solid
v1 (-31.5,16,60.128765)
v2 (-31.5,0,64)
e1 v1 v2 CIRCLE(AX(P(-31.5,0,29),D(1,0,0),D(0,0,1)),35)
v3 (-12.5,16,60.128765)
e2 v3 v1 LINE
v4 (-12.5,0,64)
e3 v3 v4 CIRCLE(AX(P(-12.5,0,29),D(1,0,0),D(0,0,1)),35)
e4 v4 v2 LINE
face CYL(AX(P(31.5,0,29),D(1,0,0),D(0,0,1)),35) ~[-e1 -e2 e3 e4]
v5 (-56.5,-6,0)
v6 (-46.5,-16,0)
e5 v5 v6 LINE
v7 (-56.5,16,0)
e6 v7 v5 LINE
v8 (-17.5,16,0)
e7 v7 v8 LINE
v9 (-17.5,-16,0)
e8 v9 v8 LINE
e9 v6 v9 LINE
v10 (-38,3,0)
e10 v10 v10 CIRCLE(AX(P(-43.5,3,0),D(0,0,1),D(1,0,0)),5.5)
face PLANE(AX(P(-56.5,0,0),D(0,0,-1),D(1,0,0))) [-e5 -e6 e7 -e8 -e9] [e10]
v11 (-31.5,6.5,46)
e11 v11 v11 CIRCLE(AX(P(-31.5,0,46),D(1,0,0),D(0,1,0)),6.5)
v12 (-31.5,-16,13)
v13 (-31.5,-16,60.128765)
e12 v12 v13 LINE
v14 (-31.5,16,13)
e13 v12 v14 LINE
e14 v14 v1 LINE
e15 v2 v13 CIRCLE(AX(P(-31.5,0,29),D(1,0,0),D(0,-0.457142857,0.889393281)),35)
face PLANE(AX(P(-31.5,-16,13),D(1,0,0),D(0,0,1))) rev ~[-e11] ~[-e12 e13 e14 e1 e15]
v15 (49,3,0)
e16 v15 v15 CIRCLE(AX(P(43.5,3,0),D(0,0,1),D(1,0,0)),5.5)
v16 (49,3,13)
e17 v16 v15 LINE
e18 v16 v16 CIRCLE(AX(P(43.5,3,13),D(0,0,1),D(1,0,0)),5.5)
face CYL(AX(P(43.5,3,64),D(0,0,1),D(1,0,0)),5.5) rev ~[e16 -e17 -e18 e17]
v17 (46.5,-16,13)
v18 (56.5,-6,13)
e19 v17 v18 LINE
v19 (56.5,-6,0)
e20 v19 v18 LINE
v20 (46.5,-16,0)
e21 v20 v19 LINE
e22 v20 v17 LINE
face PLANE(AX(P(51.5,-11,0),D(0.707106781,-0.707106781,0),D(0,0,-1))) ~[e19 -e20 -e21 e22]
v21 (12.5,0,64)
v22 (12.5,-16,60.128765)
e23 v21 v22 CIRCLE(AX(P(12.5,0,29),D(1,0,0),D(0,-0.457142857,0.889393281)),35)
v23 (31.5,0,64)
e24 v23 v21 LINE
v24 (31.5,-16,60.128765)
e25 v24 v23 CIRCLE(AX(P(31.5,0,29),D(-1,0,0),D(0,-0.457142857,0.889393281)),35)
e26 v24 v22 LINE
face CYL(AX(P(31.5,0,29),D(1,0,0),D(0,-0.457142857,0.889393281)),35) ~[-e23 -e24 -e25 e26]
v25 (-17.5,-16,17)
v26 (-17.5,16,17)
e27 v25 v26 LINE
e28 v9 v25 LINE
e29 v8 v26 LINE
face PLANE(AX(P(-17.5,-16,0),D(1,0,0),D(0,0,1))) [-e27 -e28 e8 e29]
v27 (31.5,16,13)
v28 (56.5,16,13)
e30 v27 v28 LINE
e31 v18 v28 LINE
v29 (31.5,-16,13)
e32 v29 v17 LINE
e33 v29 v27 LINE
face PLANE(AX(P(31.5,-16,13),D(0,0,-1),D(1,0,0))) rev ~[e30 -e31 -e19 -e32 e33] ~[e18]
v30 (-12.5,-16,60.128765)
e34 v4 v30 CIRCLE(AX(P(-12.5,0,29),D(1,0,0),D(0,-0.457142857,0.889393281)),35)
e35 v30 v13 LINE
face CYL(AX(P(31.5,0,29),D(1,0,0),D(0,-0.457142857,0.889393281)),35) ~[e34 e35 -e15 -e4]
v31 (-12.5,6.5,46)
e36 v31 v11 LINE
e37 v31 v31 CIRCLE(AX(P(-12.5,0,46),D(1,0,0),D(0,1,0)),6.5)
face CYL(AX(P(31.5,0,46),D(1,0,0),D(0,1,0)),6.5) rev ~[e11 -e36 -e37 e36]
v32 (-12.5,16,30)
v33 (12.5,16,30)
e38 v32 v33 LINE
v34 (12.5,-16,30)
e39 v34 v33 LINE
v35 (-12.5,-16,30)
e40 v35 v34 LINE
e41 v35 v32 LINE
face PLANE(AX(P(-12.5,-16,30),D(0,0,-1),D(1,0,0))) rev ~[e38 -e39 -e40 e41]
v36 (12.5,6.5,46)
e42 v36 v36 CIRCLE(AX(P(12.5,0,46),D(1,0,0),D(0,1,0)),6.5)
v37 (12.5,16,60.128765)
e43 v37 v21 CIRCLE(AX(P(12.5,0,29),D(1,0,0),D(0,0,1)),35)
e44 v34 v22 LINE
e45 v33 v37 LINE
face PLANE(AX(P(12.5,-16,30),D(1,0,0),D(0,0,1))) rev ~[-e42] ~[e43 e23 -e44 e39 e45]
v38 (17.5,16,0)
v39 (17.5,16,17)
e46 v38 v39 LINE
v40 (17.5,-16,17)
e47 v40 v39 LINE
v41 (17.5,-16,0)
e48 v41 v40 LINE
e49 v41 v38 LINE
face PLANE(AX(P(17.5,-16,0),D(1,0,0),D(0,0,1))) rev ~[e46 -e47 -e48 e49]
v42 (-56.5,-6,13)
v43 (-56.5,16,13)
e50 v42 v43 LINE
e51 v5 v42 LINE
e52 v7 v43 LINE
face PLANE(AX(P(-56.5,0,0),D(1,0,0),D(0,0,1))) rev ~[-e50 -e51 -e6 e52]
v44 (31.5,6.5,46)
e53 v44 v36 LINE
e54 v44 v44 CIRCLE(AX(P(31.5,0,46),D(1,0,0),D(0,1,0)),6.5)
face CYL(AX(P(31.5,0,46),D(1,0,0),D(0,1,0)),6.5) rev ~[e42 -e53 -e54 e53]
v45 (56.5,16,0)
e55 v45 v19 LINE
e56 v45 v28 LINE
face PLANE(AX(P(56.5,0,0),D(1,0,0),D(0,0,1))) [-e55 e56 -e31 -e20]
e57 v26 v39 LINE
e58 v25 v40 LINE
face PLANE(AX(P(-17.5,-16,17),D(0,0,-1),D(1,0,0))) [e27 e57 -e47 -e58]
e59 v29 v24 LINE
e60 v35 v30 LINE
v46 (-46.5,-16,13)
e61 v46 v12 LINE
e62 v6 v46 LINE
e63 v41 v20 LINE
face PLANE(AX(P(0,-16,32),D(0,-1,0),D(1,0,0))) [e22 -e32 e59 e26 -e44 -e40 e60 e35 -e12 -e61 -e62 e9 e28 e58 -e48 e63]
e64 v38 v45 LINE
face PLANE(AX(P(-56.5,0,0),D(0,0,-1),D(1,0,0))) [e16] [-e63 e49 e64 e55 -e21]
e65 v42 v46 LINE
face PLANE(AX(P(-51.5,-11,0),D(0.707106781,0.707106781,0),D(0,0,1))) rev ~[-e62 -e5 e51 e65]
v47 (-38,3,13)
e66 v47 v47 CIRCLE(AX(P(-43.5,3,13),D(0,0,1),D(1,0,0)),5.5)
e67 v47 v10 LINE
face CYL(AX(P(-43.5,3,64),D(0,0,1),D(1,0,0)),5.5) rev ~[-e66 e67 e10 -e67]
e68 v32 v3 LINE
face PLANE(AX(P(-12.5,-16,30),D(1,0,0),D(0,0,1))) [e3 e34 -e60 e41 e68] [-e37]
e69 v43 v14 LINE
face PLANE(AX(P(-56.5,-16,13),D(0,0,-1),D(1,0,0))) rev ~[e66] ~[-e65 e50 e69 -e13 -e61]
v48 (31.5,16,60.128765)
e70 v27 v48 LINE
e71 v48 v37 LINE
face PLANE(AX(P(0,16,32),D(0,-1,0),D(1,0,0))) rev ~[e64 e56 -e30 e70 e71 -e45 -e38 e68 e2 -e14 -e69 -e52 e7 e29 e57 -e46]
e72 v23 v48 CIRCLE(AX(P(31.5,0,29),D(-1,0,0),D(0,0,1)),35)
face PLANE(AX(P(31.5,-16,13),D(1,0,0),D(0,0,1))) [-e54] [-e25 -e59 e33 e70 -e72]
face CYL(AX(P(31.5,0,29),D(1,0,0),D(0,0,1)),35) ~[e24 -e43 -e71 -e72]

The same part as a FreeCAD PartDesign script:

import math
import FreeCAD as App
import Part
import Sketcher


def edges_at(feature, points):
    """Names of the edges that pass closest to the given points."""
    edges = feature.Shape.Edges
    near = lambda p: min(range(len(edges)), key=lambda i: edges[i].distToShape(Part.Vertex(*p))[0])
    return sorted({f"Edge{near(p) + 1}" for p in points})


def add_polygon(sketch, points):
    """Adds a closed chain of lines whose ends are joined by coincident constraints."""
    first, n = sketch.GeometryCount, len(points)
    for a, b in zip(points, points[1:] + points[:1]):
        sketch.addGeometry(Part.LineSegment(App.Vector(*a, 0), App.Vector(*b, 0)), False)
    for i in range(n):
        sketch.addConstraint(Sketcher.Constraint("Coincident", first + i, 2, first + (i + 1) % n, 1))

doc = App.newDocument("Part")
body = doc.addObject("PartDesign::Body", "Body")

# Sketch on XZ plane
sketch1 = body.newObject("Sketcher::SketchObject", "Sketch")
sketch1.AttachmentSupport = (doc.getObject("XZ_Plane"), [""])
sketch1.MapMode = "FlatFace"
add_polygon(sketch1, [(-56, 64), (-56, 0), (56, 0), (56, 64)])  # lines 0-3
sketch1.addConstraint([
    Sketcher.Constraint("Vertical", 0),
    Sketcher.Constraint("Horizontal", 1),
    Sketcher.Constraint("Vertical", 2),
    Sketcher.Constraint("Horizontal", 3),
    Sketcher.Constraint("Symmetric", 0, 2, 1, 2, -1, 1),
    Sketcher.Constraint("DistanceX", 1, 1, 1, 2, 113.0),
    Sketcher.Constraint("DistanceY", 0, 2, 0, 1, 64.0),
])
pad1 = body.newObject("PartDesign::Pad", "Pad")
pad1.Profile = sketch1
pad1.Length = 32
pad1.Midplane = True

# Sketch on XZ plane
sketch2 = body.newObject("Sketcher::SketchObject", "Sketch001")
sketch2.AttachmentSupport = (doc.getObject("XZ_Plane"), [""])
sketch2.MapMode = "FlatFace"
sketch2.AttachmentOffset = App.Placement(App.Vector(0, 0, 16), App.Rotation())
add_polygon(sketch2, [(-56, 64), (-56, 13), (-32, 13), (-32, 64)])  # lines 0-3
add_polygon(sketch2, [(32, 64), (32, 13), (56, 13), (56, 64)])  # lines 4-7
add_polygon(sketch2, [(-12, 64), (-12, 30), (12, 30), (12, 64)])  # lines 8-11
add_polygon(sketch2, [(-18, 17), (-18, 0), (18, 0), (18, 17)])  # lines 12-15
sketch2.addConstraint([
    Sketcher.Constraint("Vertical", 0),
    Sketcher.Constraint("Horizontal", 1),
    Sketcher.Constraint("Vertical", 2),
    Sketcher.Constraint("Horizontal", 3),
    Sketcher.Constraint("Vertical", 4),
    Sketcher.Constraint("Horizontal", 5),
    Sketcher.Constraint("Vertical", 6),
    Sketcher.Constraint("Horizontal", 7),
    Sketcher.Constraint("Vertical", 8),
    Sketcher.Constraint("Horizontal", 9),
    Sketcher.Constraint("Vertical", 10),
    Sketcher.Constraint("Horizontal", 11),
    Sketcher.Constraint("Vertical", 12),
    Sketcher.Constraint("Horizontal", 13),
    Sketcher.Constraint("Vertical", 14),
    Sketcher.Constraint("Horizontal", 15),
    Sketcher.Constraint("Symmetric", 12, 2, 13, 2, -1, 1),
    Sketcher.Constraint("Symmetric", 1, 2, 4, 2, -2),
    Sketcher.Constraint("Symmetric", 3, 2, 6, 2, -2),
    Sketcher.Constraint("Horizontal", 7, 2, 10, 2),
    Sketcher.Constraint("Equal", 7, 9),
    Sketcher.Constraint("DistanceX", 1, 1, 1, 2, 25.0),
    Sketcher.Constraint("DistanceX", 13, 1, 13, 2, 35.0),
    Sketcher.Constraint("DistanceY", 0, 2, 0, 1, 51.0),
    Sketcher.Constraint("DistanceY", 8, 2, 8, 1, 34.0),
    Sketcher.Constraint("DistanceY", 12, 2, 12, 1, 17.0),
    Sketcher.Constraint("DistanceY", -1, 1, 0, 2, 13.0),
    Sketcher.Constraint("DistanceX", 1, 2, 4, 2, 63.0),
    Sketcher.Constraint("DistanceX", 1, 2, 8, 2, 19.0),
])
pocket1 = body.newObject("PartDesign::Pocket", "Pocket")
pocket1.Profile = sketch2
pocket1.Type = "ThroughAll"

# Sketch on YZ plane
sketch3 = body.newObject("Sketcher::SketchObject", "Sketch002")
sketch3.AttachmentSupport = (doc.getObject("YZ_Plane"), [""])
sketch3.MapMode = "FlatFace"
sketch3.AttachmentOffset = App.Placement(App.Vector(0, 0, 31.5), App.Rotation())
sketch3.addGeometry([
    Part.ArcOfCircle(Part.Circle(App.Vector(0, 29, 0), App.Vector(0, 0, 1), 35), math.radians(90), math.radians(117)),  # 0
    Part.LineSegment(App.Vector(0, 64, 0), App.Vector(-16, 64, 0)),  # 1
    Part.LineSegment(App.Vector(-16, 64, 0), App.Vector(-16, 60.1, 0)),  # 2
    Part.ArcOfCircle(Part.Circle(App.Vector(0, 29, 0), App.Vector(0, 0, 1), 35), math.radians(63), math.radians(90)),  # 3
    Part.LineSegment(App.Vector(16, 60.1, 0), App.Vector(16, 64, 0)),  # 4
    Part.LineSegment(App.Vector(16, 64, 0), App.Vector(0, 64, 0)),  # 5
    Part.Circle(App.Vector(0, 46, 0), App.Vector(0, 0, 1), 6.5),  # 6
], False)
sketch3.addConstraint([
    Sketcher.Constraint("Tangent", 0, 1, 1, 1),
    Sketcher.Constraint("Coincident", 1, 2, 2, 1),
    Sketcher.Constraint("Coincident", 2, 2, 0, 2),
    Sketcher.Constraint("Coincident", 3, 1, 4, 1),
    Sketcher.Constraint("Coincident", 4, 2, 5, 1),
    Sketcher.Constraint("Tangent", 5, 2, 3, 2),
    Sketcher.Constraint("Horizontal", 1),
    Sketcher.Constraint("Vertical", 2),
    Sketcher.Constraint("Vertical", 4),
    Sketcher.Constraint("Horizontal", 5),
    Sketcher.Constraint("Coincident", 3, 3, 0, 3),
    Sketcher.Constraint("Equal", 0, 3),
    Sketcher.Constraint("Symmetric", 2, 2, 3, 1, -2),
    Sketcher.Constraint("PointOnObject", 6, 3, -2),
    Sketcher.Constraint("Diameter", 6, 13.0),
    Sketcher.Constraint("Radius", 0, 35.0),
    Sketcher.Constraint("DistanceX", 1, 2, 1, 1, 16.0),
    Sketcher.Constraint("DistanceY", -1, 1, 0, 3, 29.0),
    Sketcher.Constraint("DistanceY", -1, 1, 6, 3, 46.0),
])
pocket2 = body.newObject("PartDesign::Pocket", "Pocket001")
pocket2.Profile = sketch3
pocket2.Type = "ThroughAll"

# Sketch on XY plane
sketch4 = body.newObject("Sketcher::SketchObject", "Sketch003")
sketch4.AttachmentSupport = (doc.getObject("XY_Plane"), [""])
sketch4.MapMode = "FlatFace"
sketch4.AttachmentOffset = App.Placement(App.Vector(0, 0, 64), App.Rotation())
sketch4.addGeometry([
    Part.Circle(App.Vector(-44, 3, 0), App.Vector(0, 0, 1), 6),
    Part.Circle(App.Vector(44, 3, 0), App.Vector(0, 0, 1), 6),
], False)
sketch4.addConstraint([
    Sketcher.Constraint("Equal", 0, 1),
    Sketcher.Constraint("Symmetric", 0, 3, 1, 3, -2),
    Sketcher.Constraint("Diameter", 0, 11.0),
    Sketcher.Constraint("DistanceY", -1, 1, 0, 3, 3.0),
    Sketcher.Constraint("DistanceX", 0, 3, 1, 3, 87.0),
])
pocket3 = body.newObject("PartDesign::Pocket", "Pocket002")
pocket3.Profile = sketch4
pocket3.Type = "ThroughAll"
doc.recompute()

chamfer = body.newObject("PartDesign::Chamfer", "Chamfer")
chamfer.Base = (pocket3, edges_at(pocket3, [(56.5, -16, 6.5), (-56.5, -16, 6.5)]))
chamfer.Size = 10

doc.recompute()
